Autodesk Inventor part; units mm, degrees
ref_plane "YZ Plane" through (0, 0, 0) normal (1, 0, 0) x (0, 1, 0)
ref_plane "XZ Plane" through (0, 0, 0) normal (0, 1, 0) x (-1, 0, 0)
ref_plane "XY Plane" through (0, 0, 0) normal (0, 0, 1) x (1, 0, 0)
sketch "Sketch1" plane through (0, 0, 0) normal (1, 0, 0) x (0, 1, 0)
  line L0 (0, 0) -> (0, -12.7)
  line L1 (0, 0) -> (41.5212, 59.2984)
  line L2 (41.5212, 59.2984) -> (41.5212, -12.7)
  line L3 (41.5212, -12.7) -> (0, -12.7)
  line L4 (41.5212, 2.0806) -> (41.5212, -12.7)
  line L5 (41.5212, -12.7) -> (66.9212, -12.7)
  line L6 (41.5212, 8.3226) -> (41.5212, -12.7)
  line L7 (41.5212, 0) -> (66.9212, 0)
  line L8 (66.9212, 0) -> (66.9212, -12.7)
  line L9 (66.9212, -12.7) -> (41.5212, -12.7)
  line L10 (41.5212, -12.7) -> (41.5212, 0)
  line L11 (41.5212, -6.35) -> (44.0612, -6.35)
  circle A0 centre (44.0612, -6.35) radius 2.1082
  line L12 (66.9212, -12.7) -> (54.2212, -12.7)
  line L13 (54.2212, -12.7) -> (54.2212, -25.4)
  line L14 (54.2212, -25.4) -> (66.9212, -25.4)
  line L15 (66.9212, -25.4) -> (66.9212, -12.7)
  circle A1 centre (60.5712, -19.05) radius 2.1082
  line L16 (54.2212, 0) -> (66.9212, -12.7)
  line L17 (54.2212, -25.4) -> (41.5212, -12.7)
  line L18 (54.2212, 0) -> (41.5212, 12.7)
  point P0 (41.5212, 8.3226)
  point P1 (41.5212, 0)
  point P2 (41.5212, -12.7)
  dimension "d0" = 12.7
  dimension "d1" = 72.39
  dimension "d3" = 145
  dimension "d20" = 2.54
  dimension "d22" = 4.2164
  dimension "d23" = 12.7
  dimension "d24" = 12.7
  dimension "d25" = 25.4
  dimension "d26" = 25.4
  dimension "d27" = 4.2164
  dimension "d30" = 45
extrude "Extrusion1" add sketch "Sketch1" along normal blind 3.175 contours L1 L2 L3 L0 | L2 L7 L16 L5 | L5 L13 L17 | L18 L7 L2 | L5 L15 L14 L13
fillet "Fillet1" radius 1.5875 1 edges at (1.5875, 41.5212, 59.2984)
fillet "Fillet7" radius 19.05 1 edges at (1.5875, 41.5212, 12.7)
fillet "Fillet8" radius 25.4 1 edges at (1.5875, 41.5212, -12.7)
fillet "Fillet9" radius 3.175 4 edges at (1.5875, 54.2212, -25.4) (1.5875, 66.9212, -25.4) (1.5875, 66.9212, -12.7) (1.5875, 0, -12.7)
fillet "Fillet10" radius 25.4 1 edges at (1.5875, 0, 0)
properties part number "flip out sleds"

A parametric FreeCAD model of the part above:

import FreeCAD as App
import Part
import Sketcher
from FreeCAD import Vector
Q = App.Units.Quantity


def edges_at(feature, points):
    """Names of the edges that pass closest to the given points."""
    edges = feature.Shape.Edges
    near = lambda p: min(range(len(edges)), key=lambda i: edges[i].distToShape(Part.Vertex(*p))[0])
    return sorted({f"Edge{near(p) + 1}" for p in points})


def add_polygon(sketch, points):
    """Adds a closed chain of lines whose ends are joined by coincident constraints."""
    first, n = sketch.GeometryCount, len(points)
    for a, b in zip(points, points[1:] + points[:1]):
        sketch.addGeometry(Part.LineSegment(App.Vector(*a, 0), App.Vector(*b, 0)), False)
    for i in range(n):
        sketch.addConstraint(Sketcher.Constraint("Coincident", first + i, 2, first + (i + 1) % n, 1))

doc = App.newDocument("Part")
params = doc.addObject("Spreadsheet::Sheet", "Params")
for row, (alias, value) in enumerate([
    ("sketch1_diameter", "0.166 in"),
    ("sketch1_width", "0.5 in"),
    ("sketch1_length", "2.85 in"),
    ("pad1_length", "0.125 in"),
    ("fillet_radius", "0.0625 in"),
    ("fillet2_radius", "0.75 in"),
    ("fillet3_radius", "1 in"),
    ("fillet4_radius", "0.125 in"),
    ("fillet5_radius", "1 in"),
], start=1):
    params.set(f"A{row}", alias)
    params.set(f"B{row}", "=" + value)
    params.setAlias(f"B{row}", alias)

body = doc.addObject("PartDesign::Body", "Body")

# Sketch on YZ plane
sketch1 = body.newObject("Sketcher::SketchObject", "Sketch")
sketch1.AttachmentSupport = (doc.getObject("YZ_Plane"), [""])
sketch1.MapMode = "FlatFace"
add_polygon(sketch1, [(41.5, 59.3), (0, 0), (0, -12.7), (41.5, -12.7), (54.2, -25.4), (66.9, -25.4), (66.9, -12.7), (41.5, 12.7)])  # lines 0-7
sketch1.addGeometry(Part.Circle(Vector(44.1, -6.3, 0), Vector(0, 0, 1), 2.1), False)  # 8
sketch1.addGeometry(Part.Circle(Vector(60.6, -19.1, 0), Vector(0, 0, 1), 2.1), False)  # 9
sketch1.addConstraint(Sketcher.Constraint("Vertical", 1))
sketch1.addConstraint(Sketcher.Constraint("Horizontal", 2))
sketch1.addConstraint(Sketcher.Constraint("Horizontal", 4))
sketch1.addConstraint(Sketcher.Constraint("Vertical", 5))
sketch1.addConstraint(Sketcher.Constraint("Vertical", 7))
sketch1.addConstraint(Sketcher.Constraint("Coincident", 0, 2, -1, 1))
sketch1.addConstraint(Sketcher.Constraint("Equal", 8, 9))
sketch1.addConstraint(Sketcher.Constraint("Symmetric", 2, 2, 6, 2, -1))
sketch1.addConstraint(Sketcher.Constraint("Parallel", 3, 6))
sketch1.addConstraint(Sketcher.Constraint("Horizontal", 2, 2, 5, 2))
sketch1.addConstraint(Sketcher.Constraint("Equal", 4, 1))
sketch1.addConstraint(Sketcher.Constraint("Equal", 1, 5))
sketch1.addConstraint(Sketcher.Constraint("Diameter", 8, Q("0.166 in")))
sketch1.addConstraint(Sketcher.Constraint("DistanceX", 4, 1, 4, 2, Q("0.5 in")))
sketch1.addConstraint(Sketcher.Constraint("DistanceY", 9, 3, 8, 3, Q("0.5 in")))
sketch1.addConstraint(Sketcher.Constraint("DistanceX", 2, 2, 8, 3, Q("0.1 in")))
sketch1.addConstraint(Sketcher.Constraint("Distance", 0, Q("2.85 in")))
sketch1.addConstraint(Sketcher.Constraint("Angle", 0, Q("-125 deg")))
sketch1.addConstraint(Sketcher.Constraint("DistanceY", 8, 3, -1, 1, Q("0.25 in")))
sketch1.addConstraint(Sketcher.Constraint("DistanceX", 8, 3, 9, 3, Q("0.65 in")))
sketch1.setExpression("Constraints[20]", "Params.sketch1_diameter")
sketch1.setExpression("Constraints[21]", "Params.sketch1_width")
sketch1.setExpression("Constraints[24]", "Params.sketch1_length")
pad1 = body.newObject("PartDesign::Pad", "Pad")
pad1.Profile = sketch1
pad1.setExpression("Length", "Params.pad1_length")
doc.recompute()

fillet = body.newObject("PartDesign::Fillet", "Fillet")
fillet.Base = (pad1, edges_at(pad1, [(1.587, 41.521, 59.298)]))
fillet.setExpression("Radius", "Params.fillet_radius")
doc.recompute()

fillet2 = body.newObject("PartDesign::Fillet", "Fillet001")
fillet2.Base = (fillet, edges_at(fillet, [(1.587, 41.521, 12.7)]))
fillet2.setExpression("Radius", "Params.fillet2_radius")
doc.recompute()

fillet3 = body.newObject("PartDesign::Fillet", "Fillet002")
fillet3.Base = (fillet2, edges_at(fillet2, [(1.587, 41.521, -12.7)]))
fillet3.setExpression("Radius", "Params.fillet3_radius")
doc.recompute()

fillet4 = body.newObject("PartDesign::Fillet", "Fillet003")
fillet4.Base = (fillet3, edges_at(fillet3, [
    (1.587, 54.221, -25.4),
    (1.587, 66.921, -25.4),
    (1.587, 66.921, -12.7),
    (1.587, 0, -12.7),
]))
fillet4.setExpression("Radius", "Params.fillet4_radius")
doc.recompute()

fillet5 = body.newObject("PartDesign::Fillet", "Fillet004")
fillet5.Base = (fillet4, edges_at(fillet4, [(1.587, 0, 0)]))
fillet5.setExpression("Radius", "Params.fillet5_radius")

doc.recompute()
